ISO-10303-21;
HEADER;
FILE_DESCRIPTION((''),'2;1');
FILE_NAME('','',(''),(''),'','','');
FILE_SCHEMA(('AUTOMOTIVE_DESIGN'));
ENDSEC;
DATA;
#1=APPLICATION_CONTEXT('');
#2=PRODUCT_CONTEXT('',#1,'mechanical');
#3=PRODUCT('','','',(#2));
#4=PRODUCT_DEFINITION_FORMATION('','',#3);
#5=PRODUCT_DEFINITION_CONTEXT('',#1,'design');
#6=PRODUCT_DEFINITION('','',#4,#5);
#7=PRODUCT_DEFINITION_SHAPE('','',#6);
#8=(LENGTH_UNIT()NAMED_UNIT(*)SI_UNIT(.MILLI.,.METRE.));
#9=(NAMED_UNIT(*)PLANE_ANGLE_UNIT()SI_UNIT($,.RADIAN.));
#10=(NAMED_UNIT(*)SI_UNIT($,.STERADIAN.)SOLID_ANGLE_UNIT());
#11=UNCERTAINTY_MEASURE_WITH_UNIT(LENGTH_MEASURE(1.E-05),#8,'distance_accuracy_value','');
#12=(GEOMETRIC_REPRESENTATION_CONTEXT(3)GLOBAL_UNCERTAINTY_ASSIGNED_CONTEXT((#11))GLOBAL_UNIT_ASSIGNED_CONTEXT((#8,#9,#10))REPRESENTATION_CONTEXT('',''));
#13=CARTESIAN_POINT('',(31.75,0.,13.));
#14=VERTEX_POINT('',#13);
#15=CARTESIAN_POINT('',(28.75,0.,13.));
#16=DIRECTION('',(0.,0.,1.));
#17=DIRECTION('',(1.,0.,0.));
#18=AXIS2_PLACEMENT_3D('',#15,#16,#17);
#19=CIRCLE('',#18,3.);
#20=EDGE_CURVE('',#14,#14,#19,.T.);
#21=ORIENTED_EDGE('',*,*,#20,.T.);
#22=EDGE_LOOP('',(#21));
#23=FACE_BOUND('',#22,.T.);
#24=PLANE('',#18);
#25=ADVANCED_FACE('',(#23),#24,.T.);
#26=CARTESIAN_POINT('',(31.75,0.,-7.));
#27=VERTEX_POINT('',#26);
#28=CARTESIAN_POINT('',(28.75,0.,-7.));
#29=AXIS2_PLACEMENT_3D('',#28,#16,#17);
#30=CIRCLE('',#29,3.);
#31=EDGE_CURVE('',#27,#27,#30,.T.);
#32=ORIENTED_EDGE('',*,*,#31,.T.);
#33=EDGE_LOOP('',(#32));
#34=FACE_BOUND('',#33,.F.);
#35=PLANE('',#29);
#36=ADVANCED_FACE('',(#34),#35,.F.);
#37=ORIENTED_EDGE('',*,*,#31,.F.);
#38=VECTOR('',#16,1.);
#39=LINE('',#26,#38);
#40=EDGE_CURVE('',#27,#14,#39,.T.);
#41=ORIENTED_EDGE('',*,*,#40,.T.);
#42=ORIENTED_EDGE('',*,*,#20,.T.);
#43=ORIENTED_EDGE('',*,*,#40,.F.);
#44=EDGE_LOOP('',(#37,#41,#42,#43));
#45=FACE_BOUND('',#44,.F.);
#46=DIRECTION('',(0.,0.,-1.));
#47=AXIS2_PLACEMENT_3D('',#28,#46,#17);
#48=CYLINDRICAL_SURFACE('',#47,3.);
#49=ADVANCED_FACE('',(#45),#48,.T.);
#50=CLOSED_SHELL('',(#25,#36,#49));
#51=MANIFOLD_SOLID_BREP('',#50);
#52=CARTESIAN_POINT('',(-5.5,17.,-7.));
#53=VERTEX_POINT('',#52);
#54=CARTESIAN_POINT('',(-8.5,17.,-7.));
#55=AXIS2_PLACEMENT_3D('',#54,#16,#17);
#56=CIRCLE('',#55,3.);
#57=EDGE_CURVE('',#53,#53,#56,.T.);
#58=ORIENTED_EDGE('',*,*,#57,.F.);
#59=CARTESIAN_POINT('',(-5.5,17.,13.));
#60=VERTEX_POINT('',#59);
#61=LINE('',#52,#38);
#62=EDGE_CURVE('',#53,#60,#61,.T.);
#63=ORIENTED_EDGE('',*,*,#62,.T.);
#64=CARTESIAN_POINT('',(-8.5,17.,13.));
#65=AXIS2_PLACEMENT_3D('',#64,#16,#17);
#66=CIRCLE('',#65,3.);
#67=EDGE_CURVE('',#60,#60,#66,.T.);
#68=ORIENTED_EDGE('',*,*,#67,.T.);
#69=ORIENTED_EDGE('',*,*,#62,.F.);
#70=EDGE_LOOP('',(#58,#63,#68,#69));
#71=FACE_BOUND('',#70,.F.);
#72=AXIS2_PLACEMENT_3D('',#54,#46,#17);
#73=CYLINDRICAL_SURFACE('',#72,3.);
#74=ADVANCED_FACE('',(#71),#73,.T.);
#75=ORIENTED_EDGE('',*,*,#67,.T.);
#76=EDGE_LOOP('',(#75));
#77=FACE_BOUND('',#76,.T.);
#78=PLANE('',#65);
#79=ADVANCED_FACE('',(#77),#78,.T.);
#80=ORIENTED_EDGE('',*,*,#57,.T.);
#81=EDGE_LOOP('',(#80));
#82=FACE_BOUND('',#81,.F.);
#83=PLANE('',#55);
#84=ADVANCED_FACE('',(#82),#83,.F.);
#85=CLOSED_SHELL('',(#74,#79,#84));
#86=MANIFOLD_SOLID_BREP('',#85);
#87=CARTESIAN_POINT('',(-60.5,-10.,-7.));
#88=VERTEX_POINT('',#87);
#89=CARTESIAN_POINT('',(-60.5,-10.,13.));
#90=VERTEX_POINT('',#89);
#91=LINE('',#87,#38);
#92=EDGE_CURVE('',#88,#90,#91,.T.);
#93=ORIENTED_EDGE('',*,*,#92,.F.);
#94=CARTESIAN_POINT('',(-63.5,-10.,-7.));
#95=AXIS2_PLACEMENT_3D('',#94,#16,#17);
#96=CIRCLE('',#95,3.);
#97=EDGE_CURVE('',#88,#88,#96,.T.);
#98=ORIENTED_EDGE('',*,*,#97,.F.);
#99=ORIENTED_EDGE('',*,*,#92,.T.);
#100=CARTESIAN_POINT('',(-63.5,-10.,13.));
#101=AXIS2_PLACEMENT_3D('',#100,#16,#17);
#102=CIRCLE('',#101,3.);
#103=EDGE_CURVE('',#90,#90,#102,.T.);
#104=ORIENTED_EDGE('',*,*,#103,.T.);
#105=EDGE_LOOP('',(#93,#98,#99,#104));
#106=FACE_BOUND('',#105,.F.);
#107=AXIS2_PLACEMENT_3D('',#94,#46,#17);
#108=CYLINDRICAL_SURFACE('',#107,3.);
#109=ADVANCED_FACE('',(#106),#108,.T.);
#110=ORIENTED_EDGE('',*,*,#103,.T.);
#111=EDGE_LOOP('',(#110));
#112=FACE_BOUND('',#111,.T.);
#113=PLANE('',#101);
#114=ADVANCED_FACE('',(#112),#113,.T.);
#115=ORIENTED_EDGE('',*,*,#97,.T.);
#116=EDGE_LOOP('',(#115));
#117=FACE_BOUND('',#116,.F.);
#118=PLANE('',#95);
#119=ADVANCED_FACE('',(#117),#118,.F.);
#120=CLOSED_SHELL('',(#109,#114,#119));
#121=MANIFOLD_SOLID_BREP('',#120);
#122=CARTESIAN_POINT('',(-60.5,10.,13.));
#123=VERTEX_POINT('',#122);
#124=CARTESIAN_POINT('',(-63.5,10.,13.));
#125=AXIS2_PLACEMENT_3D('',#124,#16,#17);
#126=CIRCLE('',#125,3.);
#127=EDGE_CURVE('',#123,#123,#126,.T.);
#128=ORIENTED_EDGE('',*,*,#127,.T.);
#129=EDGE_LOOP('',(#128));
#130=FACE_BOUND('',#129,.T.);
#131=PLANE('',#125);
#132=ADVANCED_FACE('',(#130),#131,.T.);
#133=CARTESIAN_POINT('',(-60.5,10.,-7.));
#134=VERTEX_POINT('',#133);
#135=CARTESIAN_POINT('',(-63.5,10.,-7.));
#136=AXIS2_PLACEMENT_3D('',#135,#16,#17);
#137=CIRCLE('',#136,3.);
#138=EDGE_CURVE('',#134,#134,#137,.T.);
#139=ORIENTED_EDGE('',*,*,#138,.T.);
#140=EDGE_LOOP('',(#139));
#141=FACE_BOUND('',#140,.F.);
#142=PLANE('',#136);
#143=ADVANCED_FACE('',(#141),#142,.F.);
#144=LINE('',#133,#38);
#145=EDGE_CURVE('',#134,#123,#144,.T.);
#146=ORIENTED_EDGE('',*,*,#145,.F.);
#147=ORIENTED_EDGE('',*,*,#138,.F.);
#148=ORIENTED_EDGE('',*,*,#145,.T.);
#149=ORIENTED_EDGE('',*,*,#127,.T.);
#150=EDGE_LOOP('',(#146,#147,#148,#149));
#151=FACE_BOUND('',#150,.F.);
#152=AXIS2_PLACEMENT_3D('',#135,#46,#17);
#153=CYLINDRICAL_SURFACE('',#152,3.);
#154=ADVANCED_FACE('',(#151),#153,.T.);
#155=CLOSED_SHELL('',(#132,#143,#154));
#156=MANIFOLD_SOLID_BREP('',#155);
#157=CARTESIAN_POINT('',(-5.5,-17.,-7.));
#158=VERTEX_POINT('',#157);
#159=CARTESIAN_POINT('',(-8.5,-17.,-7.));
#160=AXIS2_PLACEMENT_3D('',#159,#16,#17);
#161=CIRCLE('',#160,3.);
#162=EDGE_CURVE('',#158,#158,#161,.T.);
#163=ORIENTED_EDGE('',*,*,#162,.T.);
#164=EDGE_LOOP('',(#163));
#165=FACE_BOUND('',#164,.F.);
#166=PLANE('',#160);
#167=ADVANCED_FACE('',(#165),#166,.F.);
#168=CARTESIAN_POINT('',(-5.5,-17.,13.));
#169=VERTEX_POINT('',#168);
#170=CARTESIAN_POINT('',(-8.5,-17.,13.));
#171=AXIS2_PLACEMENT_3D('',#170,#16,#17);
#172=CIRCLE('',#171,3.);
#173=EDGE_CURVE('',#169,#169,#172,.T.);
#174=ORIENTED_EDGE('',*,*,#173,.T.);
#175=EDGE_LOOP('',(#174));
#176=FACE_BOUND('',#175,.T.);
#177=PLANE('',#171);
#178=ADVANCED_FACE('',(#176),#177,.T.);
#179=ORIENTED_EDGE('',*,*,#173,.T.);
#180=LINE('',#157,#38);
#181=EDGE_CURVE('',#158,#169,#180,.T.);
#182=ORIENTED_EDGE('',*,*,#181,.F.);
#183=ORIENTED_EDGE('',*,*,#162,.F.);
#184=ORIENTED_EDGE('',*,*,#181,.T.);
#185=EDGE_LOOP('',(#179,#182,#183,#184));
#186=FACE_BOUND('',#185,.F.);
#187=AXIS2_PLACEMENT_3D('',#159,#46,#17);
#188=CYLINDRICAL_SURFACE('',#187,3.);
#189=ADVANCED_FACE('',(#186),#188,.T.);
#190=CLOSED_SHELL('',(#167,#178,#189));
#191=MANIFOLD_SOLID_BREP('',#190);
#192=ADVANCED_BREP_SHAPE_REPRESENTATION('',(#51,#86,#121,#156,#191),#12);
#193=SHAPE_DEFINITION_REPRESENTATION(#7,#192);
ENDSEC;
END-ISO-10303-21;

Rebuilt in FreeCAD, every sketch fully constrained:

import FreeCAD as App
import Part
import Sketcher

doc = App.newDocument("Part")
body = doc.addObject("PartDesign::Body", "Body")

sketch1 = body.newObject("Sketcher::SketchObject", "Sketch")
sketch1.AttachmentSupport = (doc.getObject("XY_Plane"), [""])
sketch1.MapMode = "FlatFace"
sketch1.AttachmentOffset = App.Placement(App.Vector(0, 0, -7), App.Rotation())
sketch1.addGeometry(Part.Circle(App.Vector(-63.5, -10, 0), App.Vector(0, 0, 1), 3), False)
sketch1.addConstraint([
    Sketcher.Constraint("Diameter", 0, 6.0),
    Sketcher.Constraint("DistanceY", 0, 3, -1, 1, 10.0),
    Sketcher.Constraint("DistanceX", 0, 3, -1, 1, 63.5),
])
pad1 = body.newObject("PartDesign::Pad", "Pad")
pad1.Profile = sketch1
pad1.Length = 20
body2 = doc.addObject("PartDesign::Body", "Body001")

sketch2 = body2.newObject("Sketcher::SketchObject", "Sketch001")
sketch2.AttachmentSupport = (doc.getObject("XY_Plane001"), [""])
sketch2.MapMode = "FlatFace"
sketch2.AttachmentOffset = App.Placement(App.Vector(0, 0, -7), App.Rotation())
sketch2.addGeometry(Part.Circle(App.Vector(-8.5, -17, 0), App.Vector(0, 0, 1), 3), False)
sketch2.addConstraint([
    Sketcher.Constraint("Diameter", 0, 6.0),
    Sketcher.Constraint("DistanceY", 0, 3, -1, 1, 17.0),
    Sketcher.Constraint("DistanceX", 0, 3, -1, 1, 8.5),
])
pad2 = body2.newObject("PartDesign::Pad", "Pad001")
pad2.Profile = sketch2
pad2.Length = 20
body3 = doc.addObject("PartDesign::Body", "Body002")

sketch3 = body3.newObject("Sketcher::SketchObject", "Sketch002")
sketch3.AttachmentSupport = (doc.getObject("XY_Plane002"), [""])
sketch3.MapMode = "FlatFace"
sketch3.AttachmentOffset = App.Placement(App.Vector(0, 0, -7), App.Rotation())
sketch3.addGeometry(Part.Circle(App.Vector(-63.5, 10, 0), App.Vector(0, 0, 1), 3), False)
sketch3.addConstraint([
    Sketcher.Constraint("Diameter", 0, 6.0),
    Sketcher.Constraint("DistanceY", -1, 1, 0, 3, 10.0),
    Sketcher.Constraint("DistanceX", 0, 3, -1, 1, 63.5),
])
pad3 = body3.newObject("PartDesign::Pad", "Pad002")
pad3.Profile = sketch3
pad3.Length = 20
body4 = doc.addObject("PartDesign::Body", "Body003")

sketch4 = body4.newObject("Sketcher::SketchObject", "Sketch003")
sketch4.AttachmentSupport = (doc.getObject("XY_Plane003"), [""])
sketch4.MapMode = "FlatFace"
sketch4.AttachmentOffset = App.Placement(App.Vector(0, 0, -7), App.Rotation())
sketch4.addGeometry(Part.Circle(App.Vector(-8.5, 17, 0), App.Vector(0, 0, 1), 3), False)
sketch4.addConstraint([
    Sketcher.Constraint("Diameter", 0, 6.0),
    Sketcher.Constraint("DistanceY", -1, 1, 0, 3, 17.0),
    Sketcher.Constraint("DistanceX", 0, 3, -1, 1, 8.5),
])
pad4 = body4.newObject("PartDesign::Pad", "Pad003")
pad4.Profile = sketch4
pad4.Length = 20
body5 = doc.addObject("PartDesign::Body", "Body004")
body5.AllowCompound = True

sketch5 = body5.newObject("Sketcher::SketchObject", "Sketch004")
sketch5.AttachmentSupport = (doc.getObject("XY_Plane004"), [""])
sketch5.MapMode = "FlatFace"
sketch5.AttachmentOffset = App.Placement(App.Vector(0, 0, -7), App.Rotation())
sketch5.addGeometry(Part.Circle(App.Vector(28.8, 0, 0), App.Vector(0, 0, 1), 3), False)
sketch5.addConstraint([
    Sketcher.Constraint("PointOnObject", 0, 3, -1),
    Sketcher.Constraint("Diameter", 0, 6.0),
    Sketcher.Constraint("DistanceX", -1, 1, 0, 3, 28.75),
])
pad5 = body5.newObject("PartDesign::Pad", "Pad004")
pad5.Profile = sketch5
pad5.Length = 20
doc.recompute()

boolean = body5.newObject("PartDesign::Boolean", "Boolean")
boolean.Type = "Fuse"
boolean.addObjects([body])
doc.recompute()

boolean2 = body5.newObject("PartDesign::Boolean", "Boolean001")
boolean2.Type = "Fuse"
boolean2.addObjects([body2])
doc.recompute()

boolean3 = body5.newObject("PartDesign::Boolean", "Boolean002")
boolean3.Type = "Fuse"
boolean3.addObjects([body3])
doc.recompute()

boolean4 = body5.newObject("PartDesign::Boolean", "Boolean003")
boolean4.Type = "Fuse"
boolean4.addObjects([body4])

doc.recompute()
